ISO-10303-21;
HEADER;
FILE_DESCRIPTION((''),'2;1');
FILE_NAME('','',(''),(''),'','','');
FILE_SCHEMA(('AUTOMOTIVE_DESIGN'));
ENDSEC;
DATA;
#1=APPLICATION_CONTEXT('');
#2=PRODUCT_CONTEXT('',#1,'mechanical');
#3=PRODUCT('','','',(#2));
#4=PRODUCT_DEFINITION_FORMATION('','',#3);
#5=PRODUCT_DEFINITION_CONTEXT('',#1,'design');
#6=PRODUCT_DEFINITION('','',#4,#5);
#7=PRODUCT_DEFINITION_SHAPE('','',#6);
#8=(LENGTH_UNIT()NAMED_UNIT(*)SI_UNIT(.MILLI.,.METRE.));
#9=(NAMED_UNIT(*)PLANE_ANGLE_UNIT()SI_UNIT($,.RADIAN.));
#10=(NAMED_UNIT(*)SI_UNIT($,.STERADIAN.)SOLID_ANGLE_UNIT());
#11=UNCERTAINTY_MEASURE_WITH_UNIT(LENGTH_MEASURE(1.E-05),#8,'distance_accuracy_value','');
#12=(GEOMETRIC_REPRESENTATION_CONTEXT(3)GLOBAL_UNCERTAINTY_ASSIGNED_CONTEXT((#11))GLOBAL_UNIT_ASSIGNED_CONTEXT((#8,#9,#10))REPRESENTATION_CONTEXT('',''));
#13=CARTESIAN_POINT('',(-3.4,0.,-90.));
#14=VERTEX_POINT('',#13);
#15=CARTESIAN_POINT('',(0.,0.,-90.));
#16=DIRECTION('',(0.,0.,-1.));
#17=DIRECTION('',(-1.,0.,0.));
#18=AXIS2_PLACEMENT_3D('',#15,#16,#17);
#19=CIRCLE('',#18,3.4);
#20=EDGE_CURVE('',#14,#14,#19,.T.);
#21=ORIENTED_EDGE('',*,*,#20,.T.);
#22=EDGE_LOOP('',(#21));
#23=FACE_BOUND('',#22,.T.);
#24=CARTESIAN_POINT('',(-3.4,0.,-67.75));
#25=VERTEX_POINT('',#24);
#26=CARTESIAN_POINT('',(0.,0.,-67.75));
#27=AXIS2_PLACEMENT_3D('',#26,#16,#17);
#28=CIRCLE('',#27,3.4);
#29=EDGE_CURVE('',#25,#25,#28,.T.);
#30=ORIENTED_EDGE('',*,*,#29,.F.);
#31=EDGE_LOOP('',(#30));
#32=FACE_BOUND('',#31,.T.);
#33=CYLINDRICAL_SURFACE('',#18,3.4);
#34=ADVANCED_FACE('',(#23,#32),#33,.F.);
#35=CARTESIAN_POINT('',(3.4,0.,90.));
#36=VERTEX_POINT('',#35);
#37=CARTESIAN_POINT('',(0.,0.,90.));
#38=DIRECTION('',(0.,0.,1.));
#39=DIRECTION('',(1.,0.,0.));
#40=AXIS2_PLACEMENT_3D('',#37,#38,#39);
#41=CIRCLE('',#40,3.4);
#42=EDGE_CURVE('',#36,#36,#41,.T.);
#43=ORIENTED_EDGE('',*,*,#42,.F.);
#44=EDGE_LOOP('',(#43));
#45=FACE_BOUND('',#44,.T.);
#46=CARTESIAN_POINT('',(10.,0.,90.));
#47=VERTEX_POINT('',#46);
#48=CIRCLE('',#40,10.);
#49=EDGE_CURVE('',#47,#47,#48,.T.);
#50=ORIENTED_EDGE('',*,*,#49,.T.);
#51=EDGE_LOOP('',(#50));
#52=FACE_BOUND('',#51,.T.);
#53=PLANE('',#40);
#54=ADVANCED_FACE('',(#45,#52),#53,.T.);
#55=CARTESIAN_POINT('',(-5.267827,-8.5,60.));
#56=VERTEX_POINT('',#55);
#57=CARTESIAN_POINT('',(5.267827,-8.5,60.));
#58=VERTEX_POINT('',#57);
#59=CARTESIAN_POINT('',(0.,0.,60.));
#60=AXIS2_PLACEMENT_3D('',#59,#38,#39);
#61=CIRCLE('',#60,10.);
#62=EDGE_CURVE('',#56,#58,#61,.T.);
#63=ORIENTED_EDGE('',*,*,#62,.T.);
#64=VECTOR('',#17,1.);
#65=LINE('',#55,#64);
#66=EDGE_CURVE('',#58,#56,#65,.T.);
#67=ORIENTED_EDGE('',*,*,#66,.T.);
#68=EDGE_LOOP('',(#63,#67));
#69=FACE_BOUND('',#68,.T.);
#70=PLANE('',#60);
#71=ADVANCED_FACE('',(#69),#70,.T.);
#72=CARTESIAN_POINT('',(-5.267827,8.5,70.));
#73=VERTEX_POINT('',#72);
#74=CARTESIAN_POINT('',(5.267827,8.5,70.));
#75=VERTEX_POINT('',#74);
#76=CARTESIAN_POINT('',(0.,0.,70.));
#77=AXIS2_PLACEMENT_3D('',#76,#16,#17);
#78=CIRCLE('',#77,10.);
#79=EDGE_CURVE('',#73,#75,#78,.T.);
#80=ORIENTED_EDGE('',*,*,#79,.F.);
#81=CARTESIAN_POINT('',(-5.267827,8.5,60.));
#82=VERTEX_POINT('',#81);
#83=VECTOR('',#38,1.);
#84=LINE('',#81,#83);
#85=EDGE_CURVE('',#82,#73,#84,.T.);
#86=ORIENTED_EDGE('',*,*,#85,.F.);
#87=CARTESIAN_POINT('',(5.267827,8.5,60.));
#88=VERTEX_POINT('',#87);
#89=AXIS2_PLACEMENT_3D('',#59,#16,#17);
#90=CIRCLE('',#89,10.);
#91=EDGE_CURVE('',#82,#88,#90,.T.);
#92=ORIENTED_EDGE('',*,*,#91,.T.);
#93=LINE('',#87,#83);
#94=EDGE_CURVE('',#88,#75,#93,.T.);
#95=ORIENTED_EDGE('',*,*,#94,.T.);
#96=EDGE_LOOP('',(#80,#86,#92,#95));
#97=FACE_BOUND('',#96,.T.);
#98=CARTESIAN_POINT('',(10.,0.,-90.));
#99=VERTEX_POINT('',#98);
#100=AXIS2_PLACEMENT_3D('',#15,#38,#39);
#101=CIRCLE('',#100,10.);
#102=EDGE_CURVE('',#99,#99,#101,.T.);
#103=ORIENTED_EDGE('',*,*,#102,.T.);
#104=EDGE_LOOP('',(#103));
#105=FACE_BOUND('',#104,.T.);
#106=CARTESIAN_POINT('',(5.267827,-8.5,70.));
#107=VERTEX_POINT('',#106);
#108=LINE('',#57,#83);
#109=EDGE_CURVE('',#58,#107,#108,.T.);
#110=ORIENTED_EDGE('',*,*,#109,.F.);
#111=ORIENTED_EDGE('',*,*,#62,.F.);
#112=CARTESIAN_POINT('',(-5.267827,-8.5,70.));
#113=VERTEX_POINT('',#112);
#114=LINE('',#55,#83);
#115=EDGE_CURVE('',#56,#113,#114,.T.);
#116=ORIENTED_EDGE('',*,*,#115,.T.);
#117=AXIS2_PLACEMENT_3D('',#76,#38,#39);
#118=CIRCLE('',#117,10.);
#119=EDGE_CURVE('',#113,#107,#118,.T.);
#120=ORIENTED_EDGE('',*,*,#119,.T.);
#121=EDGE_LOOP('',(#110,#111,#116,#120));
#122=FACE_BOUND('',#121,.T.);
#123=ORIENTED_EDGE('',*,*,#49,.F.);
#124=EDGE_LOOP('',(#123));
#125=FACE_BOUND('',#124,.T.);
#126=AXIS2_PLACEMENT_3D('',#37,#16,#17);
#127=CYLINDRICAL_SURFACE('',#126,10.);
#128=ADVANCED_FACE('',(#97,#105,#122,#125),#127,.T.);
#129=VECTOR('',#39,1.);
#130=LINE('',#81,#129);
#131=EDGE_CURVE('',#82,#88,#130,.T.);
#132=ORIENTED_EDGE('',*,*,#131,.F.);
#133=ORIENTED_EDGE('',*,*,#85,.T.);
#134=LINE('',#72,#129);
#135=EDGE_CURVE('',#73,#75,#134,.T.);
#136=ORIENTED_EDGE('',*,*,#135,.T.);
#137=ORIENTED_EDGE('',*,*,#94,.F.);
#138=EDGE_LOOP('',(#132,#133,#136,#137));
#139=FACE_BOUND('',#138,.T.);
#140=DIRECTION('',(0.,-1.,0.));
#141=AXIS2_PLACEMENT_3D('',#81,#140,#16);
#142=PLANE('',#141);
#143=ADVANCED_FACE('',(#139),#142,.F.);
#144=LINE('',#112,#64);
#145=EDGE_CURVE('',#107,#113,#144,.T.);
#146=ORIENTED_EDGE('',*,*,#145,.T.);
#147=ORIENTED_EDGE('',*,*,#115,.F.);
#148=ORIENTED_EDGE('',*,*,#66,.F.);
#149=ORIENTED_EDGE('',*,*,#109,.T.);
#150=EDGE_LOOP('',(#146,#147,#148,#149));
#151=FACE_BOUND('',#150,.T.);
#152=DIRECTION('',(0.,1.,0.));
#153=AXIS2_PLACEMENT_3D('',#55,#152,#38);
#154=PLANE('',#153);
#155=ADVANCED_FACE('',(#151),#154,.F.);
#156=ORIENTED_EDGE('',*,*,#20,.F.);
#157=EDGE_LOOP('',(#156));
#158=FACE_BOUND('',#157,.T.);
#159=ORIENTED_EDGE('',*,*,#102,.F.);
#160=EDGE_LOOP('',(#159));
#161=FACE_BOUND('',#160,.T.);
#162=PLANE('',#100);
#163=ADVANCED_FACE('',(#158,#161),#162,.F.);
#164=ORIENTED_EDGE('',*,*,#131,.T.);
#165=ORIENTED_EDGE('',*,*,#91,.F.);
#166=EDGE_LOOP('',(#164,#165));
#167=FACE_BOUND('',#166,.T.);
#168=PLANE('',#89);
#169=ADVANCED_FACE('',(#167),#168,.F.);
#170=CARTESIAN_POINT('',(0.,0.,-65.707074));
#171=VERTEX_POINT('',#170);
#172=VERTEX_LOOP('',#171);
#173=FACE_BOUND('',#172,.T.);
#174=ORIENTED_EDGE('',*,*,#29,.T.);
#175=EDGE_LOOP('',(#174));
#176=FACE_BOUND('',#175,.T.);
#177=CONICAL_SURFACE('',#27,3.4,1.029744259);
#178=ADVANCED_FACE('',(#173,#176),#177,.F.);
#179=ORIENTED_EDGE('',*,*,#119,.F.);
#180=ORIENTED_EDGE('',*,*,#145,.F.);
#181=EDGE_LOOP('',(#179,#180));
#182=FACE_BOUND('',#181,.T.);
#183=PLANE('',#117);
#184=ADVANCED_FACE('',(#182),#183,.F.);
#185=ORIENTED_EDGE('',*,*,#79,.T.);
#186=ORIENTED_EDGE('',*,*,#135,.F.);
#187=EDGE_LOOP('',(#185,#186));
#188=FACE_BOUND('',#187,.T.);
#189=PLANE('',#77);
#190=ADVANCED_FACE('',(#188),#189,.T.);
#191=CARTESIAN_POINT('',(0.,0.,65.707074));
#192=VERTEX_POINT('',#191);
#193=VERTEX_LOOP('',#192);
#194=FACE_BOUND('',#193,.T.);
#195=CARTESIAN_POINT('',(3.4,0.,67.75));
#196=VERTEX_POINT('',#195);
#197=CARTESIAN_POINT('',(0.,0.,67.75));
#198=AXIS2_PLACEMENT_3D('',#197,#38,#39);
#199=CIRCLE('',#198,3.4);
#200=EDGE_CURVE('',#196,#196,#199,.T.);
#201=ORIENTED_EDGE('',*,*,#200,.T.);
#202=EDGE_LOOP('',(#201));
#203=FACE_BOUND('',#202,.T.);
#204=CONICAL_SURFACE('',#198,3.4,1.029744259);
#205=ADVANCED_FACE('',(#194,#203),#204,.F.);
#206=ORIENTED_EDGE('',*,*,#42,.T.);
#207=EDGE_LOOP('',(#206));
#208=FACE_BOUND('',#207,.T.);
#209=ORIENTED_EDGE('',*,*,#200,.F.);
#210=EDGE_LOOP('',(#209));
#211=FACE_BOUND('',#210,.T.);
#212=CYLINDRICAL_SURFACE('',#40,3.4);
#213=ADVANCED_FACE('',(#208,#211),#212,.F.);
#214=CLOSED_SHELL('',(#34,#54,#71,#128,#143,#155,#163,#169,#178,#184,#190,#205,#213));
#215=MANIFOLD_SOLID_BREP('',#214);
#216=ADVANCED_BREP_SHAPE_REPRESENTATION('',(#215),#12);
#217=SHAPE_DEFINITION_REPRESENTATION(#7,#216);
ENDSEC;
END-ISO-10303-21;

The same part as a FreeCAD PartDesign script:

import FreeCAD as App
import Part
import Sketcher

V = App.Vector
Q = App.Units.Quantity

doc = App.newDocument("Part")
params = doc.addObject("Spreadsheet::Sheet", "Params")
for row, (alias, value) in enumerate([
    ("sketch1_diameter", "20 mm"),
    ("pad1_length", "180 mm"),
    ("sketch2_width", "3.4 mm"),
    ("sketch2_height", "22.25 mm"),
    ("groove_angle", "360 deg"),
    ("sketch3_height", "1.5 mm"),
    ("pocket1_length", "10 mm"),
], start=1):
    params.set(f"A{row}", alias)
    params.set(f"B{row}", "=" + value)
    params.setAlias(f"B{row}", alias)

body = doc.addObject("PartDesign::Body", "Body")

# Sketch on XY plane
sketch1 = body.newObject("Sketcher::SketchObject", "Sketch")
sketch1.AttachmentSupport = (doc.getObject("XY_Plane"), [""])
sketch1.MapMode = "FlatFace"
sketch1.addGeometry(Part.Circle(V(0, 0, 0), V(0, 0, 1), 10), False)
sketch1.addConstraint(Sketcher.Constraint("Coincident", 0, 3, -1, 1))
sketch1.addConstraint(Sketcher.Constraint("Diameter", 0, Q("20 mm")))
sketch1.setExpression("Constraints[1]", "Params.sketch1_diameter")
pad1 = body.newObject("PartDesign::Pad", "Pad")
pad1.Profile = sketch1
pad1.setExpression("Length", "Params.pad1_length")
pad1.Midplane = True

# Sketch on YZ plane
sketch2 = body.newObject("Sketcher::SketchObject", "Sketch001")
sketch2.AttachmentSupport = (doc.getObject("YZ_Plane"), [""])
sketch2.MapMode = "FlatFace"
sketch2.addGeometry(Part.LineSegment(V(0, 65.707074, 0), V(0, 90, 0)), False)
sketch2.addGeometry(Part.LineSegment(V(0, 90, 0), V(-3.4, 90, 0)), False)
sketch2.addGeometry(Part.LineSegment(V(-3.4, 90, 0), V(-3.4, 67.75, 0)), False)
sketch2.addGeometry(Part.LineSegment(V(-3.4, 67.75, 0), V(0, 65.707074, 0)), False)
sketch2.addConstraint(Sketcher.Constraint("Coincident", 0, 2, 1, 1))
sketch2.addConstraint(Sketcher.Constraint("Coincident", 1, 2, 2, 1))
sketch2.addConstraint(Sketcher.Constraint("Coincident", 2, 2, 3, 1))
sketch2.addConstraint(Sketcher.Constraint("Coincident", 3, 2, 0, 1))
sketch2.addConstraint(Sketcher.Constraint("Vertical", 0))
sketch2.addConstraint(Sketcher.Constraint("Horizontal", 1))
sketch2.addConstraint(Sketcher.Constraint("Vertical", 2))
sketch2.addConstraint(Sketcher.Constraint("PointOnObject", 0, 2, -2))
sketch2.addConstraint(Sketcher.Constraint("Angle", 3, Q("-31 deg")))
sketch2.addConstraint(Sketcher.Constraint("DistanceX", 1, 2, 1, 1, Q("3.4 mm")))
sketch2.addConstraint(Sketcher.Constraint("DistanceY", -1, 1, 0, 2, Q("90 mm")))
sketch2.addConstraint(Sketcher.Constraint("DistanceY", 2, 2, 2, 1, Q("22.25 mm")))
sketch2.setExpression("Constraints[9]", "Params.sketch2_width")
sketch2.setExpression("Constraints[11]", "Params.sketch2_height")
groove = body.newObject("PartDesign::Groove", "Groove")
groove.Profile = sketch2
groove.ReferenceAxis = (sketch2, ["V_Axis"])
groove.setExpression("Angle", "Params.groove_angle")

# Sketch on XY plane
sketch3 = body.newObject("Sketcher::SketchObject", "Sketch002")
sketch3.AttachmentSupport = (doc.getObject("XY_Plane"), [""])
sketch3.MapMode = "FlatFace"
sketch3.AttachmentOffset = App.Placement(V(0, 0, 70), App.Rotation())
sketch3.addGeometry(Part.LineSegment(V(-5.267827, 10, 0), V(-5.267827, 8.5, 0)), False)
sketch3.addGeometry(Part.LineSegment(V(-5.267827, 8.5, 0), V(5.267827, 8.5, 0)), False)
sketch3.addGeometry(Part.LineSegment(V(5.267827, 8.5, 0), V(5.267827, 10, 0)), False)
sketch3.addGeometry(Part.LineSegment(V(5.267827, 10, 0), V(-5.267827, 10, 0)), False)
sketch3.addGeometry(Part.LineSegment(V(-5.267827, -8.5, 0), V(-5.267827, -10, 0)), False)
sketch3.addGeometry(Part.LineSegment(V(-5.267827, -10, 0), V(5.267827, -10, 0)), False)
sketch3.addGeometry(Part.LineSegment(V(5.267827, -10, 0), V(5.267827, -8.5, 0)), False)
sketch3.addGeometry(Part.LineSegment(V(5.267827, -8.5, 0), V(-5.267827, -8.5, 0)), False)
sketch3.addConstraint(Sketcher.Constraint("Coincident", 0, 2, 1, 1))
sketch3.addConstraint(Sketcher.Constraint("Coincident", 1, 2, 2, 1))
sketch3.addConstraint(Sketcher.Constraint("Coincident", 2, 2, 3, 1))
sketch3.addConstraint(Sketcher.Constraint("Coincident", 3, 2, 0, 1))
sketch3.addConstraint(Sketcher.Constraint("Coincident", 4, 2, 5, 1))
sketch3.addConstraint(Sketcher.Constraint("Coincident", 5, 2, 6, 1))
sketch3.addConstraint(Sketcher.Constraint("Coincident", 6, 2, 7, 1))
sketch3.addConstraint(Sketcher.Constraint("Coincident", 7, 2, 4, 1))
sketch3.addConstraint(Sketcher.Constraint("Vertical", 0))
sketch3.addConstraint(Sketcher.Constraint("Horizontal", 1))
sketch3.addConstraint(Sketcher.Constraint("Vertical", 2))
sketch3.addConstraint(Sketcher.Constraint("Horizontal", 3))
sketch3.addConstraint(Sketcher.Constraint("Vertical", 4))
sketch3.addConstraint(Sketcher.Constraint("Horizontal", 5))
sketch3.addConstraint(Sketcher.Constraint("Vertical", 6))
sketch3.addConstraint(Sketcher.Constraint("Horizontal", 7))
sketch3.addConstraint(Sketcher.Constraint("Symmetric", 2, 2, 4, 2, -1, 1))
sketch3.addConstraint(Sketcher.Constraint("Symmetric", 0, 2, 6, 2, -1, 1))
sketch3.addConstraint(Sketcher.Constraint("Vertical", 3, 2, 4, 2))
sketch3.addConstraint(Sketcher.Constraint("DistanceY", 0, 2, 0, 1, Q("1.5 mm")))
sketch3.addConstraint(Sketcher.Constraint("DistanceY", -1, 1, 2, 2, Q("10 mm")))
sketch3.addConstraint(Sketcher.Constraint("DistanceX", 1, 1, 1, 2, Q("10.535654 mm")))
sketch3.setExpression("Constraints[19]", "Params.sketch3_height")
pocket1 = body.newObject("PartDesign::Pocket", "Pocket")
pocket1.Profile = sketch3
pocket1.setExpression("Length", "Params.pocket1_length")
doc.recompute()

mirrored = body.newObject("PartDesign::Mirrored", "Mirrored")
mirrored.Originals = [groove]
mirrored.MirrorPlane = (doc.getObject("XY_Plane"), [""])
body.Tip = mirrored

doc.recompute()
